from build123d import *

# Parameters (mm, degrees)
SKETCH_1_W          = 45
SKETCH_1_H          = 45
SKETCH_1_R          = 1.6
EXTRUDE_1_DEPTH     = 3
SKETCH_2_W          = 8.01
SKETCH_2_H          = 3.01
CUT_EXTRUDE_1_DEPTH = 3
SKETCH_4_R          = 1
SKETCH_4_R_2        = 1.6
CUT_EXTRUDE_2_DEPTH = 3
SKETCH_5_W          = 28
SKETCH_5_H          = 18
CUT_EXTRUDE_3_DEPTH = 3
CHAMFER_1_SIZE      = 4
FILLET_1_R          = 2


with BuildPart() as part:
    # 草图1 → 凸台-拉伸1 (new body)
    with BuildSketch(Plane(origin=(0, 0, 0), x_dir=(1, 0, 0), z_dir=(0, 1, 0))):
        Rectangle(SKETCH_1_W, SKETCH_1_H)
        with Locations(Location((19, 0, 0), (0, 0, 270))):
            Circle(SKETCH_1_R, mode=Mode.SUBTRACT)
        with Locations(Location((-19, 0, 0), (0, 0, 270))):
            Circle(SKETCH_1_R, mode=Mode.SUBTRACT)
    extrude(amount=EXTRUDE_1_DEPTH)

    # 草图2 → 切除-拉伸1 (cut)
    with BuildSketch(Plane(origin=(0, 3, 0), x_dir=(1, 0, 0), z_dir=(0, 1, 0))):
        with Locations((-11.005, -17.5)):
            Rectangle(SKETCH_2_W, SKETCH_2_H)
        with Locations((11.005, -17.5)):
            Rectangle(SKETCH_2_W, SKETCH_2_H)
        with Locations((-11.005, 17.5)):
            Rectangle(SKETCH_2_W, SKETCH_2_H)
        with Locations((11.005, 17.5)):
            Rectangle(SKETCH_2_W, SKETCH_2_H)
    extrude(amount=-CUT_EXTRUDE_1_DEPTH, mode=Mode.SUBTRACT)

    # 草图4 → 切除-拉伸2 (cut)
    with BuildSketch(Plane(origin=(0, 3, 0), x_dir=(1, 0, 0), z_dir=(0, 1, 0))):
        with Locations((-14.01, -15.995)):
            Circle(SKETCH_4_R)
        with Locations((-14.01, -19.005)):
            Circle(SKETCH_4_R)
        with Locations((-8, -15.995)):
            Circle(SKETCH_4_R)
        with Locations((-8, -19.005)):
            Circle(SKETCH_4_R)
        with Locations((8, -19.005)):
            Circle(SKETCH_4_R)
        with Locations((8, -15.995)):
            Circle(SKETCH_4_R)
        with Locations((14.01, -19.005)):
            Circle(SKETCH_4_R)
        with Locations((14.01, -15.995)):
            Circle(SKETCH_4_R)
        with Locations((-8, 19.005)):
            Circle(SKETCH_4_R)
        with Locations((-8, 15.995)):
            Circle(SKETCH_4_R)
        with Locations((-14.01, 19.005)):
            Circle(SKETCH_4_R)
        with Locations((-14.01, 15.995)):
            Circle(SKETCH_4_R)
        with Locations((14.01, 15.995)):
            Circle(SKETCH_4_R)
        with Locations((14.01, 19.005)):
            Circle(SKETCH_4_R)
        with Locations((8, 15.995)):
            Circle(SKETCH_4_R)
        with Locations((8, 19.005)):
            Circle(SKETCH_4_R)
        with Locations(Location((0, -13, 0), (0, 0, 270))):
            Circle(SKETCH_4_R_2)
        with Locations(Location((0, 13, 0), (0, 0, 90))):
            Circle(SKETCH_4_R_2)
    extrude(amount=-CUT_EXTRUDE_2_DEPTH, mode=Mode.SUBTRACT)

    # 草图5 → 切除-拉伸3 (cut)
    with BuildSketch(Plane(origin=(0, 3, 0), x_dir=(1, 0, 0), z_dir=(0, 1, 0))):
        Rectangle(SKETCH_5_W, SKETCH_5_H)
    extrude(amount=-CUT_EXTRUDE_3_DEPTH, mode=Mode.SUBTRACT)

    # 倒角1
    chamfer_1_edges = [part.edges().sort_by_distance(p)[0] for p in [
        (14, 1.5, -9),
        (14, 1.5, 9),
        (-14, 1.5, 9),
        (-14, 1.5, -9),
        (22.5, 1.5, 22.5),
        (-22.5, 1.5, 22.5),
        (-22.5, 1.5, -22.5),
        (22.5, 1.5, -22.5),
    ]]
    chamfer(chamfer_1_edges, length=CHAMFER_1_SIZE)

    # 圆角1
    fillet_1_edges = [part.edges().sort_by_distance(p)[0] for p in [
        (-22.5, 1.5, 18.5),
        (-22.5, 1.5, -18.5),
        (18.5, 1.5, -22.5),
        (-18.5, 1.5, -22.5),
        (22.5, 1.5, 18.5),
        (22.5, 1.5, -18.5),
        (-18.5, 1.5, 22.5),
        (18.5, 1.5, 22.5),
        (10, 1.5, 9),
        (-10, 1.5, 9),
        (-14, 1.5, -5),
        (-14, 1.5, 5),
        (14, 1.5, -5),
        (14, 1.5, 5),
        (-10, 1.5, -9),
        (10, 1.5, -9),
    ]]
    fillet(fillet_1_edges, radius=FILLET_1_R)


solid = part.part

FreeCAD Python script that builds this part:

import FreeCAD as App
import Part
import Sketcher

V = App.Vector
Q = App.Units.Quantity


def edges_at(feature, points):
    """Names of the edges that pass closest to the given points."""
    edges = feature.Shape.Edges
    near = lambda p: min(range(len(edges)), key=lambda i: edges[i].distToShape(Part.Vertex(*p))[0])
    return sorted({f"Edge{near(p) + 1}" for p in points})

doc = App.newDocument("Part")
body = doc.addObject("PartDesign::Body", "Body")

# Sketch on XZ plane
sketch1 = doc.addObject("Sketcher::SketchObject", "Sketch")
body.addObject(sketch1)
sketch1.AttachmentSupport = (doc.XZ_Plane, [""])
sketch1.MapMode = "FlatFace"
sketch1.addGeometry(Part.LineSegment(V(-22.5, -22.5, 0), V(-22.5, 22.5, 0)), False)
sketch1.addGeometry(Part.LineSegment(V(-22.5, 22.5, 0), V(22.5, 22.5, 0)), False)
sketch1.addGeometry(Part.LineSegment(V(22.5, 22.5, 0), V(22.5, -22.5, 0)), False)
sketch1.addGeometry(Part.LineSegment(V(22.5, -22.5, 0), V(-22.5, -22.5, 0)), False)
sketch1.addGeometry(Part.Circle(V(-19, 0, 0), V(0, 0, 1), 1.6), False)
sketch1.addGeometry(Part.Circle(V(19, 0, 0), V(0, 0, 1), 1.6), False)
sketch1.addConstraint(Sketcher.Constraint("Coincident", 0, 2, 1, 1))
sketch1.addConstraint(Sketcher.Constraint("Coincident", 1, 2, 2, 1))
sketch1.addConstraint(Sketcher.Constraint("Coincident", 2, 2, 3, 1))
sketch1.addConstraint(Sketcher.Constraint("Coincident", 3, 2, 0, 1))
sketch1.addConstraint(Sketcher.Constraint("Vertical", 0))
sketch1.addConstraint(Sketcher.Constraint("Horizontal", 1))
sketch1.addConstraint(Sketcher.Constraint("Vertical", 2))
sketch1.addConstraint(Sketcher.Constraint("Horizontal", 3))
sketch1.addConstraint(Sketcher.Constraint("Equal", 4, 5))
sketch1.addConstraint(Sketcher.Constraint("Symmetric", 4, 3, 5, 3, -1, 1))
sketch1.addConstraint(Sketcher.Constraint("Symmetric", 0, 2, 2, 2, -1, 1))
sketch1.addConstraint(Sketcher.Constraint("PointOnObject", 4, 3, -1))
sketch1.addConstraint(Sketcher.Constraint("Equal", 3, 0))
sketch1.addConstraint(Sketcher.Constraint("Diameter", 4, Q("3.2 mm")))
sketch1.addConstraint(Sketcher.Constraint("DistanceX", 1, 1, 1, 2, Q("45 mm")))
sketch1.addConstraint(Sketcher.Constraint("DistanceX", 4, 3, -1, 1, Q("19 mm")))
pad1 = doc.addObject("PartDesign::Pad", "Pad")
body.addObject(pad1)
pad1.Profile = sketch1
pad1.Length = 3
pad1.Reversed = True

# Sketch on XZ plane
sketch2 = doc.addObject("Sketcher::SketchObject", "Sketch001")
body.addObject(sketch2)
sketch2.AttachmentSupport = (doc.XZ_Plane, [""])
sketch2.MapMode = "FlatFace"
sketch2.AttachmentOffset = App.Placement(V(0, 0, -3), App.Rotation())
sketch2.addGeometry(Part.LineSegment(V(-15, 16, 0), V(-15, 19, 0)), False)
sketch2.addGeometry(Part.LineSegment(V(-15, 19, 0), V(-7, 19, 0)), False)
sketch2.addGeometry(Part.LineSegment(V(-7, 19, 0), V(-7, 16, 0)), False)
sketch2.addGeometry(Part.LineSegment(V(-7, 16, 0), V(-15, 16, 0)), False)
sketch2.addGeometry(Part.LineSegment(V(7, 16, 0), V(7, 19, 0)), False)
sketch2.addGeometry(Part.LineSegment(V(7, 19, 0), V(15, 19, 0)), False)
sketch2.addGeometry(Part.LineSegment(V(15, 19, 0), V(15, 16, 0)), False)
sketch2.addGeometry(Part.LineSegment(V(15, 16, 0), V(7, 16, 0)), False)
sketch2.addGeometry(Part.LineSegment(V(-15, -19, 0), V(-15, -16, 0)), False)
sketch2.addGeometry(Part.LineSegment(V(-15, -16, 0), V(-7, -16, 0)), False)
sketch2.addGeometry(Part.LineSegment(V(-7, -16, 0), V(-7, -19, 0)), False)
sketch2.addGeometry(Part.LineSegment(V(-7, -19, 0), V(-15, -19, 0)), False)
sketch2.addGeometry(Part.LineSegment(V(7, -19, 0), V(7, -16, 0)), False)
sketch2.addGeometry(Part.LineSegment(V(7, -16, 0), V(15, -16, 0)), False)
sketch2.addGeometry(Part.LineSegment(V(15, -16, 0), V(15, -19, 0)), False)
sketch2.addGeometry(Part.LineSegment(V(15, -19, 0), V(7, -19, 0)), False)
sketch2.addConstraint(Sketcher.Constraint("Coincident", 0, 2, 1, 1))
sketch2.addConstraint(Sketcher.Constraint("Coincident", 1, 2, 2, 1))
sketch2.addConstraint(Sketcher.Constraint("Coincident", 2, 2, 3, 1))
sketch2.addConstraint(Sketcher.Constraint("Coincident", 3, 2, 0, 1))
sketch2.addConstraint(Sketcher.Constraint("Coincident", 4, 2, 5, 1))
sketch2.addConstraint(Sketcher.Constraint("Coincident", 5, 2, 6, 1))
sketch2.addConstraint(Sketcher.Constraint("Coincident", 6, 2, 7, 1))
sketch2.addConstraint(Sketcher.Constraint("Coincident", 7, 2, 4, 1))
sketch2.addConstraint(Sketcher.Constraint("Coincident", 8, 2, 9, 1))
sketch2.addConstraint(Sketcher.Constraint("Coincident", 9, 2, 10, 1))
sketch2.addConstraint(Sketcher.Constraint("Coincident", 10, 2, 11, 1))
sketch2.addConstraint(Sketcher.Constraint("Coincident", 11, 2, 8, 1))
sketch2.addConstraint(Sketcher.Constraint("Coincident", 12, 2, 13, 1))
sketch2.addConstraint(Sketcher.Constraint("Coincident", 13, 2, 14, 1))
sketch2.addConstraint(Sketcher.Constraint("Coincident", 14, 2, 15, 1))
sketch2.addConstraint(Sketcher.Constraint("Coincident", 15, 2, 12, 1))
sketch2.addConstraint(Sketcher.Constraint("Vertical", 0))
sketch2.addConstraint(Sketcher.Constraint("Horizontal", 1))
sketch2.addConstraint(Sketcher.Constraint("Vertical", 2))
sketch2.addConstraint(Sketcher.Constraint("Horizontal", 3))
sketch2.addConstraint(Sketcher.Constraint("Vertical", 4))
sketch2.addConstraint(Sketcher.Constraint("Horizontal", 5))
sketch2.addConstraint(Sketcher.Constraint("Vertical", 6))
sketch2.addConstraint(Sketcher.Constraint("Horizontal", 7))
sketch2.addConstraint(Sketcher.Constraint("Vertical", 8))
sketch2.addConstraint(Sketcher.Constraint("Horizontal", 9))
sketch2.addConstraint(Sketcher.Constraint("Vertical", 10))
sketch2.addConstraint(Sketcher.Constraint("Horizontal", 11))
sketch2.addConstraint(Sketcher.Constraint("Vertical", 12))
sketch2.addConstraint(Sketcher.Constraint("Horizontal", 13))
sketch2.addConstraint(Sketcher.Constraint("Vertical", 14))
sketch2.addConstraint(Sketcher.Constraint("Horizontal", 15))
sketch2.addConstraint(Sketcher.Constraint("Symmetric", 6, 2, 8, 2, -1, 1))
sketch2.addConstraint(Sketcher.Constraint("Symmetric", 4, 2, 10, 2, -1, 1))
sketch2.addConstraint(Sketcher.Constraint("Symmetric", 2, 2, 12, 2, -1, 1))
sketch2.addConstraint(Sketcher.Constraint("Symmetric", 0, 2, 14, 2, -1, 1))
sketch2.addConstraint(Sketcher.Constraint("Symmetric", 1, 2, 4, 2, -2))
sketch2.addConstraint(Sketcher.Constraint("Symmetric", 3, 2, 6, 2, -2))
sketch2.addConstraint(Sketcher.Constraint("DistanceX", 1, 2, -1, 1, Q("7 mm")))
sketch2.addConstraint(Sketcher.Constraint("DistanceY", 8, 2, 0, 2, Q("35 mm")))
sketch2.addConstraint(Sketcher.Constraint("DistanceX", 1, 1, 1, 2, Q("8.01 mm")))
sketch2.addConstraint(Sketcher.Constraint("DistanceY", 0, 1, 0, 2, Q("3.01 mm")))
pocket1 = doc.addObject("PartDesign::Pocket", "Pocket")
body.addObject(pocket1)
pocket1.Profile = sketch2
pocket1.Length = 3
pocket1.Reversed = True

# Sketch on XZ plane
sketch3 = doc.addObject("Sketcher::SketchObject", "Sketch002")
body.addObject(sketch3)
sketch3.AttachmentSupport = (doc.XZ_Plane, [""])
sketch3.MapMode = "FlatFace"
sketch3.AttachmentOffset = App.Placement(V(0, 0, -3), App.Rotation())
sketch3.addGeometry(Part.Circle(V(-14, 16, 0), V(0, 0, 1), 1), False)
sketch3.addGeometry(Part.Circle(V(-14, 19, 0), V(0, 0, 1), 1), False)
sketch3.addGeometry(Part.Circle(V(-8, 16, 0), V(0, 0, 1), 1), False)
sketch3.addGeometry(Part.Circle(V(-8, 19, 0), V(0, 0, 1), 1), False)
sketch3.addGeometry(Part.Circle(V(8, 19, 0), V(0, 0, 1), 1), False)
sketch3.addGeometry(Part.Circle(V(8, 16, 0), V(0, 0, 1), 1), False)
sketch3.addGeometry(Part.Circle(V(14, 19, 0), V(0, 0, 1), 1), False)
sketch3.addGeometry(Part.Circle(V(14, 16, 0), V(0, 0, 1), 1), False)
sketch3.addGeometry(Part.Circle(V(-8, -19, 0), V(0, 0, 1), 1), False)
sketch3.addGeometry(Part.Circle(V(-8, -16, 0), V(0, 0, 1), 1), False)
sketch3.addGeometry(Part.Circle(V(-14, -19, 0), V(0, 0, 1), 1), False)
sketch3.addGeometry(Part.Circle(V(-14, -16, 0), V(0, 0, 1), 1), False)
sketch3.addGeometry(Part.Circle(V(14, -16, 0), V(0, 0, 1), 1), False)
sketch3.addGeometry(Part.Circle(V(14, -19, 0), V(0, 0, 1), 1), False)
sketch3.addGeometry(Part.Circle(V(8, -16, 0), V(0, 0, 1), 1), False)
sketch3.addGeometry(Part.Circle(V(8, -19, 0), V(0, 0, 1), 1), False)
sketch3.addGeometry(Part.Circle(V(0, 13, 0), V(0, 0, 1), 1.6), False)
sketch3.addGeometry(Part.Circle(V(0, -13, 0), V(0, 0, 1), 1.6), False)
sketch3.addConstraint(Sketcher.Constraint("Equal", 0, 1))
sketch3.addConstraint(Sketcher.Constraint("Equal", 1, 2))
sketch3.addConstraint(Sketcher.Constraint("Equal", 2, 3))
sketch3.addConstraint(Sketcher.Constraint("Equal", 3, 4))
sketch3.addConstraint(Sketcher.Constraint("Equal", 4, 5))
sketch3.addConstraint(Sketcher.Constraint("Equal", 5, 6))
sketch3.addConstraint(Sketcher.Constraint("Equal", 6, 7))
sketch3.addConstraint(Sketcher.Constraint("Equal", 7, 8))
sketch3.addConstraint(Sketcher.Constraint("Equal", 8, 9))
sketch3.addConstraint(Sketcher.Constraint("Equal", 9, 10))
sketch3.addConstraint(Sketcher.Constraint("Equal", 10, 11))
sketch3.addConstraint(Sketcher.Constraint("Equal", 11, 12))
sketch3.addConstraint(Sketcher.Constraint("Equal", 12, 13))
sketch3.addConstraint(Sketcher.Constraint("Equal", 13, 14))
sketch3.addConstraint(Sketcher.Constraint("Equal", 14, 15))
sketch3.addConstraint(Sketcher.Constraint("Equal", 16, 17))
sketch3.addConstraint(Sketcher.Constraint("Symmetric", 4, 3, 8, 3, -1, 1))
sketch3.addConstraint(Sketcher.Constraint("Symmetric", 5, 3, 9, 3, -1, 1))
sketch3.addConstraint(Sketcher.Constraint("Symmetric", 6, 3, 10, 3, -1, 1))
sketch3.addConstraint(Sketcher.Constraint("Symmetric", 7, 3, 11, 3, -1, 1))
sketch3.addConstraint(Sketcher.Constraint("Symmetric", 0, 3, 12, 3, -1, 1))
sketch3.addConstraint(Sketcher.Constraint("Symmetric", 1, 3, 13, 3, -1, 1))
sketch3.addConstraint(Sketcher.Constraint("Symmetric", 2, 3, 14, 3, -1, 1))
sketch3.addConstraint(Sketcher.Constraint("Symmetric", 3, 3, 15, 3, -1, 1))
sketch3.addConstraint(Sketcher.Constraint("Symmetric", 16, 3, 17, 3, -1, 1))
sketch3.addConstraint(Sketcher.Constraint("Symmetric", 3, 3, 4, 3, -2))
sketch3.addConstraint(Sketcher.Constraint("Symmetric", 2, 3, 5, 3, -2))
sketch3.addConstraint(Sketcher.Constraint("Symmetric", 1, 3, 6, 3, -2))
sketch3.addConstraint(Sketcher.Constraint("Symmetric", 0, 3, 7, 3, -2))
sketch3.addConstraint(Sketcher.Constraint("PointOnObject", 16, 3, -2))
sketch3.addConstraint(Sketcher.Constraint("Horizontal", 0, 3, 2, 3))
sketch3.addConstraint(Sketcher.Constraint("Horizontal", 1, 3, 3, 3))
sketch3.addConstraint(Sketcher.Constraint("Vertical", 0, 3, 1, 3))
sketch3.addConstraint(Sketcher.Constraint("Vertical", 2, 3, 3, 3))
sketch3.addConstraint(Sketcher.Constraint("Diameter", 0, Q("2 mm")))
sketch3.addConstraint(Sketcher.Constraint("Diameter", 16, Q("3.2 mm")))
sketch3.addConstraint(Sketcher.Constraint("DistanceX", 2, 3, -1, 1, Q("8 mm")))
sketch3.addConstraint(Sketcher.Constraint("DistanceY", -1, 1, 16, 3, Q("13 mm")))
sketch3.addConstraint(Sketcher.Constraint("DistanceY", 8, 3, 2, 3, Q("35 mm")))
sketch3.addConstraint(Sketcher.Constraint("DistanceX", 0, 3, -1, 1, Q("14.01 mm")))
sketch3.addConstraint(Sketcher.Constraint("DistanceY", 0, 3, 1, 3, Q("3.01 mm")))
pocket2 = doc.addObject("PartDesign::Pocket", "Pocket001")
body.addObject(pocket2)
pocket2.Profile = sketch3
pocket2.Length = 3
pocket2.Reversed = True

# Sketch on XZ plane
sketch4 = doc.addObject("Sketcher::SketchObject", "Sketch003")
body.addObject(sketch4)
sketch4.AttachmentSupport = (doc.XZ_Plane, [""])
sketch4.MapMode = "FlatFace"
sketch4.AttachmentOffset = App.Placement(V(0, 0, -3), App.Rotation())
sketch4.addGeometry(Part.LineSegment(V(-14, -9, 0), V(-14, 9, 0)), False)
sketch4.addGeometry(Part.LineSegment(V(-14, 9, 0), V(14, 9, 0)), False)
sketch4.addGeometry(Part.LineSegment(V(14, 9, 0), V(14, -9, 0)), False)
sketch4.addGeometry(Part.LineSegment(V(14, -9, 0), V(-14, -9, 0)), False)
sketch4.addConstraint(Sketcher.Constraint("Coincident", 0, 2, 1, 1))
sketch4.addConstraint(Sketcher.Constraint("Coincident", 1, 2, 2, 1))
sketch4.addConstraint(Sketcher.Constraint("Coincident", 2, 2, 3, 1))
sketch4.addConstraint(Sketcher.Constraint("Coincident", 3, 2, 0, 1))
sketch4.addConstraint(Sketcher.Constraint("Vertical", 0))
sketch4.addConstraint(Sketcher.Constraint("Horizontal", 1))
sketch4.addConstraint(Sketcher.Constraint("Vertical", 2))
sketch4.addConstraint(Sketcher.Constraint("Horizontal", 3))
sketch4.addConstraint(Sketcher.Constraint("Symmetric", 0, 2, 2, 2, -1, 1))
sketch4.addConstraint(Sketcher.Constraint("DistanceX", 1, 1, 1, 2, Q("28 mm")))
sketch4.addConstraint(Sketcher.Constraint("DistanceY", 0, 1, 0, 2, Q("18 mm")))
pocket3 = doc.addObject("PartDesign::Pocket", "Pocket002")
body.addObject(pocket3)
pocket3.Profile = sketch4
pocket3.Length = 3
pocket3.Reversed = True
doc.recompute()

chamfer = doc.addObject("PartDesign::Chamfer", "Chamfer")
body.addObject(chamfer)
chamfer.Base = (pocket3, edges_at(pocket3, [
    (14, 1.5, -9),
    (14, 1.5, 9),
    (-14, 1.5, 9),
    (-14, 1.5, -9),
    (22.5, 1.5, 22.5),
    (-22.5, 1.5, 22.5),
    (-22.5, 1.5, -22.5),
    (22.5, 1.5, -22.5),
]))
chamfer.Size = 4
doc.recompute()

fillet = doc.addObject("PartDesign::Fillet", "Fillet")
body.addObject(fillet)
fillet.Base = (chamfer, edges_at(chamfer, [
    (-22.5, 1.5, 18.5),
    (-22.5, 1.5, -18.5),
    (18.5, 1.5, -22.5),
    (-18.5, 1.5, -22.5),
    (22.5, 1.5, 18.5),
    (22.5, 1.5, -18.5),
    (-18.5, 1.5, 22.5),
    (18.5, 1.5, 22.5),
    (10, 1.5, 9),
    (-10, 1.5, 9),
    (-14, 1.5, -5),
    (-14, 1.5, 5),
    (14, 1.5, -5),
    (14, 1.5, 5),
    (-10, 1.5, -9),
    (10, 1.5, -9),
]))
fillet.Radius = 2

doc.recompute()
